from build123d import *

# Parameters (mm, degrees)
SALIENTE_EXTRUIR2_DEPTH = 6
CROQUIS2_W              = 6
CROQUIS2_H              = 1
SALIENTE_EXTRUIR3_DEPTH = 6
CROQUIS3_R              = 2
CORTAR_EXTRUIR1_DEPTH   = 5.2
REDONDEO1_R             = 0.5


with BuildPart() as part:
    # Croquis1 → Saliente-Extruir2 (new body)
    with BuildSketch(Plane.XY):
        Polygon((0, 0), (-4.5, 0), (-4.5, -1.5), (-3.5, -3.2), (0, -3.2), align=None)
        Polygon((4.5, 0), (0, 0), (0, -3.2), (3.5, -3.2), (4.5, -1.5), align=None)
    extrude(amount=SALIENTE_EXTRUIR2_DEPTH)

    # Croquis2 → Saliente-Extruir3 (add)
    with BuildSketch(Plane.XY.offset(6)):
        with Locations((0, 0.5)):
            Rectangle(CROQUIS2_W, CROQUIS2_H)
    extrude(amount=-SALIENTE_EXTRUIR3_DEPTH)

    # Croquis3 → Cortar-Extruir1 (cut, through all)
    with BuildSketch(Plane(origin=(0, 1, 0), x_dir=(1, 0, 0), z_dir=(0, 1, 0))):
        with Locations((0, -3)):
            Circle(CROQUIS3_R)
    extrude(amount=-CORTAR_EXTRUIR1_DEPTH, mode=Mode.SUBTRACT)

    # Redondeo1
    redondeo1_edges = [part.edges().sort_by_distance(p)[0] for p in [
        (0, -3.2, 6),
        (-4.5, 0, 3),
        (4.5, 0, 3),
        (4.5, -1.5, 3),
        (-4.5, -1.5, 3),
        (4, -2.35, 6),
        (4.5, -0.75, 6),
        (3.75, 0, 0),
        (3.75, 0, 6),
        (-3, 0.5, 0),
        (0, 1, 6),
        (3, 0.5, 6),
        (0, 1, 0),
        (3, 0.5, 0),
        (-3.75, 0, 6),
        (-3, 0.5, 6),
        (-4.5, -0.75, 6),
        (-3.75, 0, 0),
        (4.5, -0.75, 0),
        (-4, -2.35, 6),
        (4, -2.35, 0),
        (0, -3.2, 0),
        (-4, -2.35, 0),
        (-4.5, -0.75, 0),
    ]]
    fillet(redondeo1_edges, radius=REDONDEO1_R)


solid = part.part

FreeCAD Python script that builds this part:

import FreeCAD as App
import Part
import Sketcher


def edges_at(feature, points):
    """Names of the edges that pass closest to the given points."""
    edges = feature.Shape.Edges
    near = lambda p: min(range(len(edges)), key=lambda i: edges[i].distToShape(Part.Vertex(*p))[0])
    return sorted({f"Edge{near(p) + 1}" for p in points})

doc = App.newDocument("Part")
body = doc.addObject("PartDesign::Body", "Body")

sketch1 = body.newObject("Sketcher::SketchObject", "Sketch")
sketch1.AttachmentSupport = (doc.getObject("XY_Plane"), [""])
sketch1.MapMode = "FlatFace"
sketch1.addGeometry(Part.LineSegment(App.Vector(-4.5, 0, 0), App.Vector(-4.5, -1.5, 0)), False)
sketch1.addGeometry(Part.LineSegment(App.Vector(-4.5, -1.5, 0), App.Vector(-3.5, -3.2, 0)), False)
sketch1.addGeometry(Part.LineSegment(App.Vector(-3.5, -3.2, 0), App.Vector(3.5, -3.2, 0)), False)
sketch1.addGeometry(Part.LineSegment(App.Vector(3.5, -3.2, 0), App.Vector(4.5, -1.5, 0)), False)
sketch1.addGeometry(Part.LineSegment(App.Vector(4.5, -1.5, 0), App.Vector(4.5, 0, 0)), False)
sketch1.addGeometry(Part.LineSegment(App.Vector(4.5, 0, 0), App.Vector(-4.5, 0, 0)), False)
sketch1.addConstraint(Sketcher.Constraint("Coincident", 0, 2, 1, 1))
sketch1.addConstraint(Sketcher.Constraint("Coincident", 1, 2, 2, 1))
sketch1.addConstraint(Sketcher.Constraint("Coincident", 2, 2, 3, 1))
sketch1.addConstraint(Sketcher.Constraint("Coincident", 3, 2, 4, 1))
sketch1.addConstraint(Sketcher.Constraint("Coincident", 4, 2, 5, 1))
sketch1.addConstraint(Sketcher.Constraint("Coincident", 5, 2, 0, 1))
sketch1.addConstraint(Sketcher.Constraint("Vertical", 0))
sketch1.addConstraint(Sketcher.Constraint("Horizontal", 2))
sketch1.addConstraint(Sketcher.Constraint("Vertical", 4))
sketch1.addConstraint(Sketcher.Constraint("Horizontal", 5))
sketch1.addConstraint(Sketcher.Constraint("Symmetric", 4, 2, 5, 2, -1, 1))
sketch1.addConstraint(Sketcher.Constraint("Horizontal", 0, 2, 3, 2))
sketch1.addConstraint(Sketcher.Constraint("Equal", 1, 3))
sketch1.addConstraint(Sketcher.Constraint("DistanceX", 2, 1, 2, 2, 7.0))
sketch1.addConstraint(Sketcher.Constraint("DistanceX", 5, 2, 5, 1, 9.0))
sketch1.addConstraint(Sketcher.Constraint("DistanceY", 0, 2, 0, 1, 1.5))
sketch1.addConstraint(Sketcher.Constraint("DistanceY", 1, 2, -1, 1, 3.2))
pad1 = body.newObject("PartDesign::Pad", "Pad")
pad1.Profile = sketch1
pad1.Length = 6

sketch2 = body.newObject("Sketcher::SketchObject", "Sketch001")
sketch2.AttachmentSupport = (doc.getObject("XY_Plane"), [""])
sketch2.MapMode = "FlatFace"
sketch2.AttachmentOffset = App.Placement(App.Vector(0, 0, 6), App.Rotation())
sketch2.addGeometry(Part.LineSegment(App.Vector(-3, 1, 0), App.Vector(-3, 0, 0)), False)
sketch2.addGeometry(Part.LineSegment(App.Vector(-3, 0, 0), App.Vector(3, 0, 0)), False)
sketch2.addGeometry(Part.LineSegment(App.Vector(3, 0, 0), App.Vector(3, 1, 0)), False)
sketch2.addGeometry(Part.LineSegment(App.Vector(3, 1, 0), App.Vector(-3, 1, 0)), False)
sketch2.addConstraint(Sketcher.Constraint("Coincident", 0, 2, 1, 1))
sketch2.addConstraint(Sketcher.Constraint("Coincident", 1, 2, 2, 1))
sketch2.addConstraint(Sketcher.Constraint("Coincident", 2, 2, 3, 1))
sketch2.addConstraint(Sketcher.Constraint("Coincident", 3, 2, 0, 1))
sketch2.addConstraint(Sketcher.Constraint("Vertical", 0))
sketch2.addConstraint(Sketcher.Constraint("Horizontal", 1))
sketch2.addConstraint(Sketcher.Constraint("Vertical", 2))
sketch2.addConstraint(Sketcher.Constraint("Horizontal", 3))
sketch2.addConstraint(Sketcher.Constraint("Symmetric", 0, 2, 1, 2, -1, 1))
sketch2.addConstraint(Sketcher.Constraint("DistanceX", 1, 1, 1, 2, 6.0))
sketch2.addConstraint(Sketcher.Constraint("DistanceY", 0, 2, 0, 1, 1.0))
pad2 = body.newObject("PartDesign::Pad", "Pad001")
pad2.Profile = sketch2
pad2.Length = 6
pad2.Reversed = True

sketch3 = body.newObject("Sketcher::SketchObject", "Sketch002")
sketch3.AttachmentSupport = (doc.getObject("XZ_Plane"), [""])
sketch3.MapMode = "FlatFace"
sketch3.AttachmentOffset = App.Placement(App.Vector(0, 0, -1), App.Rotation())
sketch3.addGeometry(Part.Circle(App.Vector(0, 3, 0), App.Vector(0, 0, 1), 2), False)
sketch3.addConstraint(Sketcher.Constraint("PointOnObject", 0, 3, -2))
sketch3.addConstraint(Sketcher.Constraint("Diameter", 0, 4.0))
sketch3.addConstraint(Sketcher.Constraint("DistanceY", -1, 1, 0, 3, 3.0))
pocket1 = body.newObject("PartDesign::Pocket", "Pocket")
pocket1.Profile = sketch3
pocket1.Type = "ThroughAll"
pocket1.Reversed = True
doc.recompute()

fillet = body.newObject("PartDesign::Fillet", "Fillet")
fillet.Base = (pocket1, edges_at(pocket1, [
    (0, -3.2, 6),
    (-4.5, 0, 3),
    (4.5, 0, 3),
    (4.5, -1.5, 3),
    (-4.5, -1.5, 3),
    (4, -2.35, 6),
    (4.5, -0.75, 6),
    (3.75, 0, 0),
    (3.75, 0, 6),
    (-3, 0.5, 0),
    (0, 1, 6),
    (3, 0.5, 6),
    (0, 1, 0),
    (3, 0.5, 0),
    (-3.75, 0, 6),
    (-3, 0.5, 6),
    (-4.5, -0.75, 6),
    (-3.75, 0, 0),
    (4.5, -0.75, 0),
    (-4, -2.35, 6),
    (4, -2.35, 0),
    (0, -3.2, 0),
    (-4, -2.35, 0),
    (-4.5, -0.75, 0),
]))
fillet.Radius = 0.5

doc.recompute()
